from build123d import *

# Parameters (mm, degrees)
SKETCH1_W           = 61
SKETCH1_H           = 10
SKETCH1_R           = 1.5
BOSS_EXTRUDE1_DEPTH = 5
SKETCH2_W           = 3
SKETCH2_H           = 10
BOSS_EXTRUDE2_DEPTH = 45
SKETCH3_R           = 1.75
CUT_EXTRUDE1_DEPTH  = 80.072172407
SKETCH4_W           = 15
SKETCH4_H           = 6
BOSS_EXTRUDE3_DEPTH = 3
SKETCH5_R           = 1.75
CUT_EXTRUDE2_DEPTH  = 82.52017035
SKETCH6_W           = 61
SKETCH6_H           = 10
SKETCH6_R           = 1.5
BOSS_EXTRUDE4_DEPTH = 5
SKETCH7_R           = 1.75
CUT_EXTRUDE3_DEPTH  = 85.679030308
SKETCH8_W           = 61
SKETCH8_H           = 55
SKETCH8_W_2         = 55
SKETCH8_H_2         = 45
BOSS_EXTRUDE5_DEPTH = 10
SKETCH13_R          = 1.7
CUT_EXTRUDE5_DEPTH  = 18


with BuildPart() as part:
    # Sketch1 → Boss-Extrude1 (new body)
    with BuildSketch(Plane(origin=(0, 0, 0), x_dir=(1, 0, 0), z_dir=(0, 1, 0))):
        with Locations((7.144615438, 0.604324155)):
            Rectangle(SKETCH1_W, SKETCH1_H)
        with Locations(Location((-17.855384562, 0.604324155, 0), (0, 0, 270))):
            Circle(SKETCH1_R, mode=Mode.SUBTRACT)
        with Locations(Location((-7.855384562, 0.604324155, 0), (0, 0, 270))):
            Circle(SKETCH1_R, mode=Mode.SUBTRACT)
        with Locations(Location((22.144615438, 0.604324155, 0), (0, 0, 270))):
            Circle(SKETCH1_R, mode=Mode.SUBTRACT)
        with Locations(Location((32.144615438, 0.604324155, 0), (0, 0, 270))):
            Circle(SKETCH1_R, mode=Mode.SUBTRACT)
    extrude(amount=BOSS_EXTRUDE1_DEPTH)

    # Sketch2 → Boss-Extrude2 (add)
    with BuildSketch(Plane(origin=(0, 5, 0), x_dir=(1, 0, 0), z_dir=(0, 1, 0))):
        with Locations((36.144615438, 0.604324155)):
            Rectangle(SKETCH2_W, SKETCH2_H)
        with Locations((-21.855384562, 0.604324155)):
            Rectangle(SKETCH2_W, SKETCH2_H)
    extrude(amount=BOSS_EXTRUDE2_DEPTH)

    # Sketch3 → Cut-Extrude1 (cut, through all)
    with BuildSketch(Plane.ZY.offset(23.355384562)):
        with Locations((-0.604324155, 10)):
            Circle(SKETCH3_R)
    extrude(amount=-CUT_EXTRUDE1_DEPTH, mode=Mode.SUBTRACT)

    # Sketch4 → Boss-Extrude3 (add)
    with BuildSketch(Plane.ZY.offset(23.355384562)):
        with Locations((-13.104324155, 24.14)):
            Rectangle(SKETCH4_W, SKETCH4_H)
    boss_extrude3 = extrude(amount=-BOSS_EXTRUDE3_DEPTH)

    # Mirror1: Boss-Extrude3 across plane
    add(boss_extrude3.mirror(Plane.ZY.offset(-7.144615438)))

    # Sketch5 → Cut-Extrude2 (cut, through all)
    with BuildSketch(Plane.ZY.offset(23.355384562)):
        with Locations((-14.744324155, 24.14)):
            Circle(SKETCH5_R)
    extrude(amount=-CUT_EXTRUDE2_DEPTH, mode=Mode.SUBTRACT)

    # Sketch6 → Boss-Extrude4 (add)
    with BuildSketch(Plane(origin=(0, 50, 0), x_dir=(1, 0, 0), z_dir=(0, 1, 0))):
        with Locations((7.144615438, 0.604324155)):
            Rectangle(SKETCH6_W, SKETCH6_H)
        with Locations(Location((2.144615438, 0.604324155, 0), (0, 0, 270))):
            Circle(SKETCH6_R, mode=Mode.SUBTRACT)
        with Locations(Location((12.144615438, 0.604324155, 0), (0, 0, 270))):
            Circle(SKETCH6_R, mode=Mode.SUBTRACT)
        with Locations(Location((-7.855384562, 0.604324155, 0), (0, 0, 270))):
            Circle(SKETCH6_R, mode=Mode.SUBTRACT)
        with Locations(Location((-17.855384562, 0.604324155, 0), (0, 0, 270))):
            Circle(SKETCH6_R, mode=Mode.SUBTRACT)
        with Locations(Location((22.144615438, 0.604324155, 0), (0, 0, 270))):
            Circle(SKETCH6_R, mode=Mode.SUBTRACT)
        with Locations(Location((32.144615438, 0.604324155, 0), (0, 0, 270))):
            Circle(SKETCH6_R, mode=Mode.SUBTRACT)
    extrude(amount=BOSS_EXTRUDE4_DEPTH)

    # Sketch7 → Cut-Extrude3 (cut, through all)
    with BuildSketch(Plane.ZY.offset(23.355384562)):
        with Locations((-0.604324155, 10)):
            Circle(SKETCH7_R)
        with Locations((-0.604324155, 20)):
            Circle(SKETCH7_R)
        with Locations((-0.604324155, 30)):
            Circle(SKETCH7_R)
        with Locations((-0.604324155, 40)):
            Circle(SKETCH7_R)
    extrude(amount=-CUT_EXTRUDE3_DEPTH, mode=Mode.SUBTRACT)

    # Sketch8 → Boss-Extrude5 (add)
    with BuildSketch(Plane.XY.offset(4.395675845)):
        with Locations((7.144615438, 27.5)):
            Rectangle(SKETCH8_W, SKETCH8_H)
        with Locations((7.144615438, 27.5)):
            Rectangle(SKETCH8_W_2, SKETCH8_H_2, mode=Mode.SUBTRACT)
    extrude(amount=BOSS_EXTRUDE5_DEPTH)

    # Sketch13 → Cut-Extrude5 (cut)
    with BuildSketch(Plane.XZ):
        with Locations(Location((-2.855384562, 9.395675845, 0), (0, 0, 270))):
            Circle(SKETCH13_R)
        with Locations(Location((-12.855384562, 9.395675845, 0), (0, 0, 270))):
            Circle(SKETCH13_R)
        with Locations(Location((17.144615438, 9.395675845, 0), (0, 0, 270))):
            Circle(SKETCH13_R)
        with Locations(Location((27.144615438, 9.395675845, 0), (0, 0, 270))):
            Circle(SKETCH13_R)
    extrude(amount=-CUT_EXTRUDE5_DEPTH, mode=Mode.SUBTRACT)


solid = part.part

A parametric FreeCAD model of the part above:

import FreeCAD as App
import Part
import Sketcher

V = App.Vector
Q = App.Units.Quantity


def add_polygon(sketch, points):
    """Adds a closed chain of lines whose ends are joined by coincident constraints."""
    first, n = sketch.GeometryCount, len(points)
    for a, b in zip(points, points[1:] + points[:1]):
        sketch.addGeometry(Part.LineSegment(App.Vector(*a, 0), App.Vector(*b, 0)), False)
    for i in range(n):
        sketch.addConstraint(Sketcher.Constraint("Coincident", first + i, 2, first + (i + 1) % n, 1))

doc = App.newDocument("Part")
body = doc.addObject("PartDesign::Body", "Body")

# Sketch on XZ plane
sketch1 = doc.addObject("Sketcher::SketchObject", "Sketch")
body.addObject(sketch1)
sketch1.AttachmentSupport = (doc.XZ_Plane, [""])
sketch1.MapMode = "FlatFace"
add_polygon(sketch1, [(-23.4, -5.6), (-23.4, 4.4), (37.6, 4.4), (37.6, -5.6)])  # lines 0-3
sketch1.addGeometry(Part.Circle(V(-17.9, -0.6, 0), V(0, 0, 1), 1.5), False)  # 4
sketch1.addGeometry(Part.Circle(V(-7.9, -0.6, 0), V(0, 0, 1), 1.5), False)  # 5
sketch1.addGeometry(Part.Circle(V(22.1, -0.6, 0), V(0, 0, 1), 1.5), False)  # 6
sketch1.addGeometry(Part.Circle(V(32.1, -0.6, 0), V(0, 0, 1), 1.5), False)  # 7
sketch1.addConstraint([
    Sketcher.Constraint("Vertical", 0),
    Sketcher.Constraint("Horizontal", 1),
    Sketcher.Constraint("Vertical", 2),
    Sketcher.Constraint("Horizontal", 3),
    Sketcher.Constraint("Equal", 4, 5),
    Sketcher.Constraint("Equal", 5, 6),
    Sketcher.Constraint("Equal", 6, 7),
    Sketcher.Constraint("Horizontal", 4, 3, 5, 3),
    Sketcher.Constraint("Horizontal", 5, 3, 6, 3),
    Sketcher.Constraint("Horizontal", 6, 3, 7, 3),
    Sketcher.Constraint("Diameter", 4, Q("3 mm")),
    Sketcher.Constraint("DistanceX", 1, 1, 1, 2, Q("61 mm")),
    Sketcher.Constraint("DistanceY", 0, 1, 0, 2, Q("10 mm")),
    Sketcher.Constraint("DistanceX", 4, 3, 5, 3, Q("10 mm")),
    Sketcher.Constraint("DistanceX", 5, 3, 6, 3, Q("30 mm")),
    Sketcher.Constraint("DistanceX", 6, 3, 7, 3, Q("10 mm")),
    Sketcher.Constraint("DistanceY", 4, 3, 0, 2, Q("5 mm")),
    Sketcher.Constraint("DistanceX", 0, 2, 4, 3, Q("5.5 mm")),
    Sketcher.Constraint("DistanceX", 4, 3, -1, 1, Q("17.855385 mm")),
    Sketcher.Constraint("DistanceY", 4, 3, -1, 1, Q("0.604324 mm")),
])
pad1 = doc.addObject("PartDesign::Pad", "Pad")
body.addObject(pad1)
pad1.Profile = sketch1
pad1.Length = 5
pad1.Reversed = True

# Sketch on XZ plane
sketch2 = doc.addObject("Sketcher::SketchObject", "Sketch001")
body.addObject(sketch2)
sketch2.AttachmentSupport = (doc.XZ_Plane, [""])
sketch2.MapMode = "FlatFace"
sketch2.AttachmentOffset = App.Placement(V(0, 0, -5), App.Rotation())
add_polygon(sketch2, [(34.6, -5.6), (34.6, 4.4), (37.6, 4.4), (37.6, -5.6)])  # lines 0-3
add_polygon(sketch2, [(-23.4, -5.6), (-23.4, 4.4), (-20.4, 4.4), (-20.4, -5.6)])  # lines 4-7
sketch2.addConstraint([
    Sketcher.Constraint("Vertical", 0),
    Sketcher.Constraint("Horizontal", 1),
    Sketcher.Constraint("Vertical", 2),
    Sketcher.Constraint("Horizontal", 3),
    Sketcher.Constraint("Vertical", 4),
    Sketcher.Constraint("Horizontal", 5),
    Sketcher.Constraint("Vertical", 6),
    Sketcher.Constraint("Horizontal", 7),
    Sketcher.Constraint("Horizontal", 1, 2, 4, 2),
    Sketcher.Constraint("Horizontal", 3, 2, 6, 2),
    Sketcher.Constraint("Equal", 3, 5),
    Sketcher.Constraint("DistanceX", 1, 1, 1, 2, Q("3 mm")),
    Sketcher.Constraint("DistanceY", 0, 1, 0, 2, Q("10 mm")),
    Sketcher.Constraint("DistanceX", 4, 2, 0, 2, Q("58 mm")),
    Sketcher.Constraint("DistanceX", -1, 1, 0, 2, Q("34.644615 mm")),
    Sketcher.Constraint("DistanceY", -1, 1, 0, 2, Q("4.395676 mm")),
])
pad2 = doc.addObject("PartDesign::Pad", "Pad001")
body.addObject(pad2)
pad2.Profile = sketch2
pad2.Length = 45
pad2.Reversed = True

# Sketch on YZ plane
sketch3 = doc.addObject("Sketcher::SketchObject", "Sketch002")
body.addObject(sketch3)
sketch3.AttachmentSupport = (doc.YZ_Plane, [""])
sketch3.MapMode = "FlatFace"
sketch3.AttachmentOffset = App.Placement(V(0, 0, -23.355385), App.Rotation())
sketch3.addGeometry(Part.Circle(V(10, -0.6, 0), V(0, 0, 1), 1.8), False)
sketch3.addConstraint([
    Sketcher.Constraint("Diameter", 0, Q("3.5 mm")),
    Sketcher.Constraint("DistanceX", -1, 1, 0, 3, Q("10 mm")),
    Sketcher.Constraint("DistanceY", 0, 3, -1, 1, Q("0.604324 mm")),
])
pocket1 = doc.addObject("PartDesign::Pocket", "Pocket")
body.addObject(pocket1)
pocket1.Profile = sketch3
pocket1.Type = "ThroughAll"
pocket1.Reversed = True

# Sketch on YZ plane
sketch4 = doc.addObject("Sketcher::SketchObject", "Sketch003")
body.addObject(sketch4)
sketch4.AttachmentSupport = (doc.YZ_Plane, [""])
sketch4.MapMode = "FlatFace"
sketch4.AttachmentOffset = App.Placement(V(0, 0, -23.355385), App.Rotation())
add_polygon(sketch4, [(27, -21), (21, -21), (21, -6), (27, -6)])  # lines 0-3
sketch4.addConstraint([
    Sketcher.Constraint("Horizontal", 0),
    Sketcher.Constraint("Vertical", 1),
    Sketcher.Constraint("Horizontal", 2),
    Sketcher.Constraint("Vertical", 3),
    Sketcher.Constraint("DistanceX", 0, 2, 0, 1, Q("6 mm")),
    Sketcher.Constraint("DistanceY", 1, 1, 1, 2, Q("15 mm")),
    Sketcher.Constraint("DistanceX", -1, 1, 0, 2, Q("21.14 mm")),
    Sketcher.Constraint("DistanceY", 0, 2, -1, 1, Q("20.604324 mm")),
])
pad3 = doc.addObject("PartDesign::Pad", "Pad002")
body.addObject(pad3)
pad3.Profile = sketch4
pad3.Length = 3
doc.recompute()

datumplane = doc.addObject("PartDesign::Plane", "DatumPlane")
body.addObject(datumplane)
datumplane.AttachmentSupport = (doc.YZ_Plane, [""])
datumplane.MapMode = "FlatFace"
datumplane.AttachmentOffset = App.Placement(V(0, 0, 7.144615), App.Rotation())
mirrored = doc.addObject("PartDesign::Mirrored", "Mirrored")
body.addObject(mirrored)
mirrored.Originals = [pad3]
mirrored.MirrorPlane = (datumplane, [""])
body.Tip = mirrored

# Sketch on YZ plane
sketch5 = doc.addObject("Sketcher::SketchObject", "Sketch004")
body.addObject(sketch5)
sketch5.AttachmentSupport = (doc.YZ_Plane, [""])
sketch5.MapMode = "FlatFace"
sketch5.AttachmentOffset = App.Placement(V(0, 0, -23.355385), App.Rotation())
sketch5.addGeometry(Part.Circle(V(24.1, -14.7, 0), V(0, 0, 1), 1.8), False)
sketch5.addConstraint([
    Sketcher.Constraint("Diameter", 0, Q("3.5 mm")),
    Sketcher.Constraint("DistanceX", -1, 1, 0, 3, Q("24.14 mm")),
    Sketcher.Constraint("DistanceY", 0, 3, -1, 1, Q("14.744324 mm")),
])
pocket2 = doc.addObject("PartDesign::Pocket", "Pocket001")
body.addObject(pocket2)
pocket2.Profile = sketch5
pocket2.Type = "ThroughAll"
pocket2.Reversed = True

# Sketch on XZ plane
sketch6 = doc.addObject("Sketcher::SketchObject", "Sketch005")
body.addObject(sketch6)
sketch6.AttachmentSupport = (doc.XZ_Plane, [""])
sketch6.MapMode = "FlatFace"
sketch6.AttachmentOffset = App.Placement(V(0, 0, -50), App.Rotation())
add_polygon(sketch6, [(-23.4, -5.6), (-23.4, 4.4), (37.6, 4.4), (37.6, -5.6)])  # lines 0-3
sketch6.addGeometry(Part.Circle(V(-17.9, -0.6, 0), V(0, 0, 1), 1.5), False)  # 4
sketch6.addGeometry(Part.Circle(V(-7.9, -0.6, 0), V(0, 0, 1), 1.5), False)  # 5
sketch6.addGeometry(Part.Circle(V(2.1, -0.6, 0), V(0, 0, 1), 1.5), False)  # 6
sketch6.addGeometry(Part.Circle(V(12.1, -0.6, 0), V(0, 0, 1), 1.5), False)  # 7
sketch6.addGeometry(Part.Circle(V(22.1, -0.6, 0), V(0, 0, 1), 1.5), False)  # 8
sketch6.addGeometry(Part.Circle(V(32.1, -0.6, 0), V(0, 0, 1), 1.5), False)  # 9
sketch6.addConstraint([
    Sketcher.Constraint("Vertical", 0),
    Sketcher.Constraint("Horizontal", 1),
    Sketcher.Constraint("Vertical", 2),
    Sketcher.Constraint("Horizontal", 3),
    Sketcher.Constraint("Equal", 4, 5),
    Sketcher.Constraint("Equal", 5, 6),
    Sketcher.Constraint("Equal", 6, 7),
    Sketcher.Constraint("Equal", 7, 8),
    Sketcher.Constraint("Equal", 8, 9),
    Sketcher.Constraint("Horizontal", 4, 3, 5, 3),
    Sketcher.Constraint("Horizontal", 5, 3, 6, 3),
    Sketcher.Constraint("Horizontal", 6, 3, 7, 3),
    Sketcher.Constraint("Horizontal", 7, 3, 8, 3),
    Sketcher.Constraint("Horizontal", 8, 3, 9, 3),
    Sketcher.Constraint("Diameter", 4, Q("3 mm")),
    Sketcher.Constraint("DistanceX", 1, 1, 1, 2, Q("61 mm")),
    Sketcher.Constraint("DistanceY", 0, 1, 0, 2, Q("10 mm")),
    Sketcher.Constraint("DistanceX", 4, 3, 5, 3, Q("10 mm")),
    Sketcher.Constraint("DistanceX", 5, 3, 6, 3, Q("10 mm")),
    Sketcher.Constraint("DistanceX", 6, 3, 7, 3, Q("10 mm")),
    Sketcher.Constraint("DistanceX", 7, 3, 8, 3, Q("10 mm")),
    Sketcher.Constraint("DistanceX", 8, 3, 9, 3, Q("10 mm")),
    Sketcher.Constraint("DistanceY", 4, 3, 0, 2, Q("5 mm")),
    Sketcher.Constraint("DistanceX", 0, 2, 4, 3, Q("5.5 mm")),
    Sketcher.Constraint("DistanceX", 4, 3, -1, 1, Q("17.855385 mm")),
    Sketcher.Constraint("DistanceY", 4, 3, -1, 1, Q("0.604324 mm")),
])
pad4 = doc.addObject("PartDesign::Pad", "Pad003")
body.addObject(pad4)
pad4.Profile = sketch6
pad4.Length = 5
pad4.Reversed = True

# Sketch on YZ plane
sketch7 = doc.addObject("Sketcher::SketchObject", "Sketch006")
body.addObject(sketch7)
sketch7.AttachmentSupport = (doc.YZ_Plane, [""])
sketch7.MapMode = "FlatFace"
sketch7.AttachmentOffset = App.Placement(V(0, 0, -23.355385), App.Rotation())
sketch7.addGeometry([
    Part.Circle(V(10, -0.6, 0), V(0, 0, 1), 1.8),
    Part.Circle(V(20, -0.6, 0), V(0, 0, 1), 1.8),
    Part.Circle(V(30, -0.6, 0), V(0, 0, 1), 1.8),
    Part.Circle(V(40, -0.6, 0), V(0, 0, 1), 1.8),
], False)
sketch7.addConstraint([
    Sketcher.Constraint("Equal", 0, 1),
    Sketcher.Constraint("Equal", 1, 2),
    Sketcher.Constraint("Equal", 2, 3),
    Sketcher.Constraint("Horizontal", 0, 3, 1, 3),
    Sketcher.Constraint("Horizontal", 1, 3, 2, 3),
    Sketcher.Constraint("Horizontal", 2, 3, 3, 3),
    Sketcher.Constraint("Diameter", 0, Q("3.5 mm")),
    Sketcher.Constraint("DistanceX", -1, 1, 0, 3, Q("10 mm")),
    Sketcher.Constraint("DistanceX", -1, 1, 1, 3, Q("20 mm")),
    Sketcher.Constraint("DistanceX", -1, 1, 2, 3, Q("30 mm")),
    Sketcher.Constraint("DistanceX", -1, 1, 3, 3, Q("40 mm")),
    Sketcher.Constraint("DistanceY", 0, 3, -1, 1, Q("0.604324 mm")),
])
pocket3 = doc.addObject("PartDesign::Pocket", "Pocket002")
body.addObject(pocket3)
pocket3.Profile = sketch7
pocket3.Type = "ThroughAll"
pocket3.Reversed = True

# Sketch on XY plane
sketch8 = doc.addObject("Sketcher::SketchObject", "Sketch007")
body.addObject(sketch8)
sketch8.AttachmentSupport = (doc.XY_Plane, [""])
sketch8.MapMode = "FlatFace"
sketch8.AttachmentOffset = App.Placement(V(0, 0, 4.395676), App.Rotation())
add_polygon(sketch8, [(-23, 55), (-23, 0), (38, 0), (38, 55)])  # lines 0-3
add_polygon(sketch8, [(35, 5), (-20, 5), (-20, 50), (35, 50)])  # lines 4-7
sketch8.addConstraint([
    Sketcher.Constraint("Vertical", 0),
    Sketcher.Constraint("Horizontal", 1),
    Sketcher.Constraint("Vertical", 2),
    Sketcher.Constraint("Horizontal", 3),
    Sketcher.Constraint("Horizontal", 4),
    Sketcher.Constraint("Vertical", 5),
    Sketcher.Constraint("Horizontal", 6),
    Sketcher.Constraint("Vertical", 7),
    Sketcher.Constraint("PointOnObject", 0, 2, -1),
    Sketcher.Constraint("Equal", 6, 0),
    Sketcher.Constraint("DistanceX", 1, 1, 1, 2, Q("61 mm")),
    Sketcher.Constraint("DistanceX", 4, 2, 4, 1, Q("55 mm")),
    Sketcher.Constraint("DistanceY", 5, 1, 5, 2, Q("45 mm")),
    Sketcher.Constraint("DistanceY", -1, 1, 4, 2, Q("5 mm")),
    Sketcher.Constraint("DistanceX", 0, 2, 4, 2, Q("3 mm")),
    Sketcher.Constraint("DistanceX", 0, 2, -1, 1, Q("23.355385 mm")),
])
pad5 = doc.addObject("PartDesign::Pad", "Pad004")
body.addObject(pad5)
pad5.Profile = sketch8
pad5.Length = 10

# Sketch on XZ plane
sketch9 = doc.addObject("Sketcher::SketchObject", "Sketch008")
body.addObject(sketch9)
sketch9.AttachmentSupport = (doc.XZ_Plane, [""])
sketch9.MapMode = "FlatFace"
sketch9.addGeometry([
    Part.Circle(V(-2.9, 9.4, 0), V(0, 0, 1), 1.7),
    Part.Circle(V(-12.9, 9.4, 0), V(0, 0, 1), 1.7),
    Part.Circle(V(17.1, 9.4, 0), V(0, 0, 1), 1.7),
    Part.Circle(V(27.1, 9.4, 0), V(0, 0, 1), 1.7),
], False)
sketch9.addConstraint([
    Sketcher.Constraint("Equal", 0, 1),
    Sketcher.Constraint("Equal", 1, 2),
    Sketcher.Constraint("Equal", 2, 3),
    Sketcher.Constraint("Horizontal", 0, 3, 1, 3),
    Sketcher.Constraint("Horizontal", 1, 3, 2, 3),
    Sketcher.Constraint("Horizontal", 2, 3, 3, 3),
    Sketcher.Constraint("Diameter", 0, Q("3.4 mm")),
    Sketcher.Constraint("DistanceX", 1, 3, 0, 3, Q("10 mm")),
    Sketcher.Constraint("DistanceX", 0, 3, 2, 3, Q("20 mm")),
    Sketcher.Constraint("DistanceX", 2, 3, 3, 3, Q("10 mm")),
    Sketcher.Constraint("DistanceX", 0, 3, -1, 1, Q("2.855385 mm")),
    Sketcher.Constraint("DistanceY", -1, 1, 0, 3, Q("9.395676 mm")),
])
pocket4 = doc.addObject("PartDesign::Pocket", "Pocket003")
body.addObject(pocket4)
pocket4.Profile = sketch9
pocket4.Length = 18

doc.recompute()
